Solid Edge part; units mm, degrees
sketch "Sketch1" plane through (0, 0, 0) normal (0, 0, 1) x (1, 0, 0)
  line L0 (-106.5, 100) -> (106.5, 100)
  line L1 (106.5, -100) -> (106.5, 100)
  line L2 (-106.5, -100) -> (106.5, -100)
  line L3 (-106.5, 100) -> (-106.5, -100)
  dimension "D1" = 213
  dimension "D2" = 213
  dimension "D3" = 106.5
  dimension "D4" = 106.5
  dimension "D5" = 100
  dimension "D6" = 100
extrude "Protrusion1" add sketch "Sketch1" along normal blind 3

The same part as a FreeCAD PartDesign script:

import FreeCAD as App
import Part
import Sketcher

doc = App.newDocument("Part")
body = doc.addObject("PartDesign::Body", "Body")

sketch1 = body.newObject("Sketcher::SketchObject", "Sketch")
sketch1.AttachmentSupport = (doc.getObject("XY_Plane"), [""])
sketch1.MapMode = "FlatFace"
sketch1.addGeometry(Part.LineSegment(App.Vector(106, 100, 0), App.Vector(-106, 100, 0)), False)
sketch1.addGeometry(Part.LineSegment(App.Vector(-106, 100, 0), App.Vector(-106, -100, 0)), False)
sketch1.addGeometry(Part.LineSegment(App.Vector(-106, -100, 0), App.Vector(106, -100, 0)), False)
sketch1.addGeometry(Part.LineSegment(App.Vector(106, -100, 0), App.Vector(106, 100, 0)), False)
sketch1.addConstraint(Sketcher.Constraint("Coincident", 0, 2, 1, 1))
sketch1.addConstraint(Sketcher.Constraint("Coincident", 1, 2, 2, 1))
sketch1.addConstraint(Sketcher.Constraint("Coincident", 2, 2, 3, 1))
sketch1.addConstraint(Sketcher.Constraint("Coincident", 3, 2, 0, 1))
sketch1.addConstraint(Sketcher.Constraint("Horizontal", 0))
sketch1.addConstraint(Sketcher.Constraint("Vertical", 1))
sketch1.addConstraint(Sketcher.Constraint("Horizontal", 2))
sketch1.addConstraint(Sketcher.Constraint("Vertical", 3))
sketch1.addConstraint(Sketcher.Constraint("Symmetric", 0, 2, 2, 2, -1, 1))
sketch1.addConstraint(Sketcher.Constraint("DistanceX", 0, 2, -1, 1, 106.5))
sketch1.addConstraint(Sketcher.Constraint("DistanceY", 1, 2, 1, 1, 200.0))
pad1 = body.newObject("PartDesign::Pad", "Pad")
pad1.Profile = sketch1
pad1.Length = 3

doc.recompute()
